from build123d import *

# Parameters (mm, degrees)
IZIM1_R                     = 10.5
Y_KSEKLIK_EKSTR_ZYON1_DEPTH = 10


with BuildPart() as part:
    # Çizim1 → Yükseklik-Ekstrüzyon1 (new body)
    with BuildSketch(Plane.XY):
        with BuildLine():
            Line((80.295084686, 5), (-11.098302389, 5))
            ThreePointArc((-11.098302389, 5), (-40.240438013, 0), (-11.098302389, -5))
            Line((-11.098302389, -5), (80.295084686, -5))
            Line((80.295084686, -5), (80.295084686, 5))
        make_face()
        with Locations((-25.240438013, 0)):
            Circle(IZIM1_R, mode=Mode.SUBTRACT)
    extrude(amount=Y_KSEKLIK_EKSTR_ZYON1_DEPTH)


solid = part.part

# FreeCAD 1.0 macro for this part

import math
import FreeCAD as App
import Part
import Sketcher

V = App.Vector
Q = App.Units.Quantity

doc = App.newDocument("Part")
body = doc.addObject("PartDesign::Body", "Body")

sketch1 = body.newObject("Sketcher::SketchObject", "Sketch")
sketch1.AttachmentSupport = (doc.getObject("XY_Plane"), [""])
sketch1.MapMode = "FlatFace"
sketch1.addGeometry([
    Part.LineSegment(V(80, 5, 0), V(-11, 5, 0)),
    Part.ArcOfCircle(Part.Circle(V(-25, 0, 0), V(0, 0, 1), 15), math.radians(19), math.radians(341)),
    Part.LineSegment(V(-11, -5, 0), V(80, -5, 0)),
    Part.LineSegment(V(80, -5, 0), V(80, 5, 0)),
    Part.Circle(V(-25, 0, 0), V(0, 0, 1), 10),
], False)
sketch1.addConstraint([
    Sketcher.Constraint("Coincident", 0, 2, 1, 1),
    Sketcher.Constraint("Coincident", 1, 2, 2, 1),
    Sketcher.Constraint("Coincident", 2, 2, 3, 1),
    Sketcher.Constraint("Coincident", 3, 2, 0, 1),
    Sketcher.Constraint("Horizontal", 0),
    Sketcher.Constraint("Horizontal", 2),
    Sketcher.Constraint("Vertical", 3),
    Sketcher.Constraint("Coincident", 4, 3, 1, 3),
    Sketcher.Constraint("Symmetric", 0, 2, 1, 2, -1),
    Sketcher.Constraint("Diameter", 4, Q("21 mm")),
    Sketcher.Constraint("Radius", 1, Q("15 mm")),
    Sketcher.Constraint("DistanceY", 3, 1, 3, 2, Q("10 mm")),
    Sketcher.Constraint("DistanceX", 0, 2, 0, 1, Q("91.393387 mm")),
    Sketcher.Constraint("DistanceX", 1, 3, -1, 1, Q("25.240438 mm")),
])
pad1 = body.newObject("PartDesign::Pad", "Pad")
pad1.Profile = sketch1
pad1.Length = 10

doc.recompute()
